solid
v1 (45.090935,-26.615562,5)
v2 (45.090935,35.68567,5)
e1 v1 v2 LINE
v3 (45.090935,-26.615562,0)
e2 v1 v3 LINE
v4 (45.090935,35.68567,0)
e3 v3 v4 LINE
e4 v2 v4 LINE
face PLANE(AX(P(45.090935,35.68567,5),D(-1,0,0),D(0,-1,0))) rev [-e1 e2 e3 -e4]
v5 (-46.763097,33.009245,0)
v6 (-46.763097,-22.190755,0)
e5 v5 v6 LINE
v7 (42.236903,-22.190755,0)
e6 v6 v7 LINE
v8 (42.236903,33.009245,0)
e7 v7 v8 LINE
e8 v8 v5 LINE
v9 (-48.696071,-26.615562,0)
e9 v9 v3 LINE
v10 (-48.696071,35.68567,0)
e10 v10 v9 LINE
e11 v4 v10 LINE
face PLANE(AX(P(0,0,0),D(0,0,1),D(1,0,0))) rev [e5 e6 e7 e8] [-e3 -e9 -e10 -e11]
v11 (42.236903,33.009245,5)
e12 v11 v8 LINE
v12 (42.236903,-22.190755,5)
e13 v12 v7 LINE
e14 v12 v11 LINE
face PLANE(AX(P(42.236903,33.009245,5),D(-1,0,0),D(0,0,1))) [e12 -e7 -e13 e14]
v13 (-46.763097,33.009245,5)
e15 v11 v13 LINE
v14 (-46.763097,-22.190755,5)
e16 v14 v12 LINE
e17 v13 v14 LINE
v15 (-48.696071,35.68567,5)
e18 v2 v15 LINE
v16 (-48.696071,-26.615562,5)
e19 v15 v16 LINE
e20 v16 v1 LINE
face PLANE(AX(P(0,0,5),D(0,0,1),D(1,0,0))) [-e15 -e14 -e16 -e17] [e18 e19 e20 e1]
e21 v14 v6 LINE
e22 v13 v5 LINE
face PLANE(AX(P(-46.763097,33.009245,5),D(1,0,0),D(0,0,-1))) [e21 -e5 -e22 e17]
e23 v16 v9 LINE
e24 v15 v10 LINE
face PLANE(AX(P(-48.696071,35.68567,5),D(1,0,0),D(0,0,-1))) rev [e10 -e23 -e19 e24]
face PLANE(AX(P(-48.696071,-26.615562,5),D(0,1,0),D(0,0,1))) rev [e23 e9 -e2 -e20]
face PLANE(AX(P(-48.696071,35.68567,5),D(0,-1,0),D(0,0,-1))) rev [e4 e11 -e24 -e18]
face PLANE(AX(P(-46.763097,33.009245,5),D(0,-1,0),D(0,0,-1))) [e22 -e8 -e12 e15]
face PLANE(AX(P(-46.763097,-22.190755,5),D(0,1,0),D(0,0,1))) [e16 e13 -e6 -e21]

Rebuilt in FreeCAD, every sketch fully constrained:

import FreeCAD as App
import Part
import Sketcher
Q = App.Units.Quantity

doc = App.newDocument("Part")
body = doc.addObject("PartDesign::Body", "Body")

sketch1 = body.newObject("Sketcher::SketchObject", "Sketch")
sketch1.AttachmentSupport = (doc.getObject("XY_Plane"), [""])
sketch1.MapMode = "FlatFace"
sketch1.addGeometry([
    Part.LineSegment(App.Vector(-49, 36, 0), App.Vector(-49, -27, 0)),
    Part.LineSegment(App.Vector(-49, -27, 0), App.Vector(45, -27, 0)),
    Part.LineSegment(App.Vector(45, -27, 0), App.Vector(45, 36, 0)),
    Part.LineSegment(App.Vector(45, 36, 0), App.Vector(-49, 36, 0)),
    Part.LineSegment(App.Vector(42, -22, 0), App.Vector(-47, -22, 0)),
    Part.LineSegment(App.Vector(-47, -22, 0), App.Vector(-47, 33, 0)),
    Part.LineSegment(App.Vector(-47, 33, 0), App.Vector(42, 33, 0)),
    Part.LineSegment(App.Vector(42, 33, 0), App.Vector(42, -22, 0)),
], False)
sketch1.addConstraint([
    Sketcher.Constraint("Coincident", 0, 2, 1, 1),
    Sketcher.Constraint("Coincident", 1, 2, 2, 1),
    Sketcher.Constraint("Coincident", 2, 2, 3, 1),
    Sketcher.Constraint("Coincident", 3, 2, 0, 1),
    Sketcher.Constraint("Coincident", 4, 2, 5, 1),
    Sketcher.Constraint("Coincident", 5, 2, 6, 1),
    Sketcher.Constraint("Coincident", 6, 2, 7, 1),
    Sketcher.Constraint("Coincident", 7, 2, 4, 1),
    Sketcher.Constraint("Vertical", 0),
    Sketcher.Constraint("Horizontal", 1),
    Sketcher.Constraint("Vertical", 2),
    Sketcher.Constraint("Horizontal", 3),
    Sketcher.Constraint("Horizontal", 4),
    Sketcher.Constraint("Vertical", 5),
    Sketcher.Constraint("Horizontal", 6),
    Sketcher.Constraint("Vertical", 7),
    Sketcher.Constraint("DistanceX", 4, 2, 4, 1, Q("89 mm")),
    Sketcher.Constraint("DistanceY", 5, 1, 5, 2, Q("55.2 mm")),
    Sketcher.Constraint("DistanceX", 1, 1, 1, 2, Q("93.787006 mm")),
    Sketcher.Constraint("DistanceY", 0, 2, 0, 1, Q("62.301233 mm")),
    Sketcher.Constraint("DistanceX", 0, 2, -1, 1, Q("48.696071 mm")),
    Sketcher.Constraint("DistanceY", -1, 1, 2, 2, Q("35.68567 mm")),
    Sketcher.Constraint("DistanceX", 4, 2, -1, 1, Q("46.763097 mm")),
    Sketcher.Constraint("DistanceY", 4, 2, -1, 1, Q("22.190755 mm")),
])
pad1 = body.newObject("PartDesign::Pad", "Pad")
pad1.Profile = sketch1
pad1.Length = 5

doc.recompute()
